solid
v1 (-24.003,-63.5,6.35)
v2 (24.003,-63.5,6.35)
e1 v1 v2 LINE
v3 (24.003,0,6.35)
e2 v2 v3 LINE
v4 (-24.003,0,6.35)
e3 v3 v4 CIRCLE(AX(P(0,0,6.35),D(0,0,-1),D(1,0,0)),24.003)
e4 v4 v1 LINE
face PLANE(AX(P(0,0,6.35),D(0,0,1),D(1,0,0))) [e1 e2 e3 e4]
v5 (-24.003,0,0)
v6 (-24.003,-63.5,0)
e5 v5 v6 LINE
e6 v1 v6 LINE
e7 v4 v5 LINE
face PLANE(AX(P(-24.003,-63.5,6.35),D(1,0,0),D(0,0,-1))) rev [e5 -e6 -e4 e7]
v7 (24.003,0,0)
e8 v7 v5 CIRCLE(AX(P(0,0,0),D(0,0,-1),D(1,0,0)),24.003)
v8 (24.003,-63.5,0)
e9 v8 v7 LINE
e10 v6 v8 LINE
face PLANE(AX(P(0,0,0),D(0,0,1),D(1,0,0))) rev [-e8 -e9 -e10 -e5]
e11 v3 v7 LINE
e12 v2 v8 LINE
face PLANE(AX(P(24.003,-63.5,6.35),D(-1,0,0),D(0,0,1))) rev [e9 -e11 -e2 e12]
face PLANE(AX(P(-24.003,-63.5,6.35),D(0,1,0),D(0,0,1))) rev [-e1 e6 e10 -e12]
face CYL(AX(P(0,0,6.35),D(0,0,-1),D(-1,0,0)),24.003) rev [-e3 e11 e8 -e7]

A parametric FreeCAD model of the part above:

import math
import FreeCAD as App
import Part
import Sketcher
Q = App.Units.Quantity

doc = App.newDocument("Part")
body = doc.addObject("PartDesign::Body", "Body")

sketch1 = body.newObject("Sketcher::SketchObject", "Sketch")
sketch1.AttachmentSupport = (doc.getObject("XY_Plane"), [""])
sketch1.MapMode = "FlatFace"
sketch1.addGeometry([
    Part.LineSegment(App.Vector(-24.003, -63.5, 0), App.Vector(24.003, -63.5, 0)),
    Part.LineSegment(App.Vector(24.003, -63.5, 0), App.Vector(24.003, 0, 0)),
    Part.ArcOfCircle(Part.Circle(App.Vector(0, 0, 0), App.Vector(0, 0, 1), 24.003), math.radians(180), math.radians(360)),
    Part.LineSegment(App.Vector(-24.003, 0, 0), App.Vector(-24.003, -63.5, 0)),
], False)
sketch1.addConstraint([
    Sketcher.Constraint("Coincident", 0, 2, 1, 1),
    Sketcher.Constraint("Tangent", 1, 2, 2, 2),
    Sketcher.Constraint("Tangent", 2, 1, 3, 1),
    Sketcher.Constraint("Coincident", 3, 2, 0, 1),
    Sketcher.Constraint("Horizontal", 0),
    Sketcher.Constraint("Vertical", 1),
    Sketcher.Constraint("Vertical", 3),
    Sketcher.Constraint("Coincident", 2, 3, -1, 1),
    Sketcher.Constraint("DistanceY", 1, 1, 1, 2, Q("2.5 in")),
    Sketcher.Constraint("Radius", 2, Q("0.945 in")),
])
pad1 = body.newObject("PartDesign::Pad", "Pad")
pad1.Profile = sketch1
pad1.Length = Q("0.25 in")

doc.recompute()
